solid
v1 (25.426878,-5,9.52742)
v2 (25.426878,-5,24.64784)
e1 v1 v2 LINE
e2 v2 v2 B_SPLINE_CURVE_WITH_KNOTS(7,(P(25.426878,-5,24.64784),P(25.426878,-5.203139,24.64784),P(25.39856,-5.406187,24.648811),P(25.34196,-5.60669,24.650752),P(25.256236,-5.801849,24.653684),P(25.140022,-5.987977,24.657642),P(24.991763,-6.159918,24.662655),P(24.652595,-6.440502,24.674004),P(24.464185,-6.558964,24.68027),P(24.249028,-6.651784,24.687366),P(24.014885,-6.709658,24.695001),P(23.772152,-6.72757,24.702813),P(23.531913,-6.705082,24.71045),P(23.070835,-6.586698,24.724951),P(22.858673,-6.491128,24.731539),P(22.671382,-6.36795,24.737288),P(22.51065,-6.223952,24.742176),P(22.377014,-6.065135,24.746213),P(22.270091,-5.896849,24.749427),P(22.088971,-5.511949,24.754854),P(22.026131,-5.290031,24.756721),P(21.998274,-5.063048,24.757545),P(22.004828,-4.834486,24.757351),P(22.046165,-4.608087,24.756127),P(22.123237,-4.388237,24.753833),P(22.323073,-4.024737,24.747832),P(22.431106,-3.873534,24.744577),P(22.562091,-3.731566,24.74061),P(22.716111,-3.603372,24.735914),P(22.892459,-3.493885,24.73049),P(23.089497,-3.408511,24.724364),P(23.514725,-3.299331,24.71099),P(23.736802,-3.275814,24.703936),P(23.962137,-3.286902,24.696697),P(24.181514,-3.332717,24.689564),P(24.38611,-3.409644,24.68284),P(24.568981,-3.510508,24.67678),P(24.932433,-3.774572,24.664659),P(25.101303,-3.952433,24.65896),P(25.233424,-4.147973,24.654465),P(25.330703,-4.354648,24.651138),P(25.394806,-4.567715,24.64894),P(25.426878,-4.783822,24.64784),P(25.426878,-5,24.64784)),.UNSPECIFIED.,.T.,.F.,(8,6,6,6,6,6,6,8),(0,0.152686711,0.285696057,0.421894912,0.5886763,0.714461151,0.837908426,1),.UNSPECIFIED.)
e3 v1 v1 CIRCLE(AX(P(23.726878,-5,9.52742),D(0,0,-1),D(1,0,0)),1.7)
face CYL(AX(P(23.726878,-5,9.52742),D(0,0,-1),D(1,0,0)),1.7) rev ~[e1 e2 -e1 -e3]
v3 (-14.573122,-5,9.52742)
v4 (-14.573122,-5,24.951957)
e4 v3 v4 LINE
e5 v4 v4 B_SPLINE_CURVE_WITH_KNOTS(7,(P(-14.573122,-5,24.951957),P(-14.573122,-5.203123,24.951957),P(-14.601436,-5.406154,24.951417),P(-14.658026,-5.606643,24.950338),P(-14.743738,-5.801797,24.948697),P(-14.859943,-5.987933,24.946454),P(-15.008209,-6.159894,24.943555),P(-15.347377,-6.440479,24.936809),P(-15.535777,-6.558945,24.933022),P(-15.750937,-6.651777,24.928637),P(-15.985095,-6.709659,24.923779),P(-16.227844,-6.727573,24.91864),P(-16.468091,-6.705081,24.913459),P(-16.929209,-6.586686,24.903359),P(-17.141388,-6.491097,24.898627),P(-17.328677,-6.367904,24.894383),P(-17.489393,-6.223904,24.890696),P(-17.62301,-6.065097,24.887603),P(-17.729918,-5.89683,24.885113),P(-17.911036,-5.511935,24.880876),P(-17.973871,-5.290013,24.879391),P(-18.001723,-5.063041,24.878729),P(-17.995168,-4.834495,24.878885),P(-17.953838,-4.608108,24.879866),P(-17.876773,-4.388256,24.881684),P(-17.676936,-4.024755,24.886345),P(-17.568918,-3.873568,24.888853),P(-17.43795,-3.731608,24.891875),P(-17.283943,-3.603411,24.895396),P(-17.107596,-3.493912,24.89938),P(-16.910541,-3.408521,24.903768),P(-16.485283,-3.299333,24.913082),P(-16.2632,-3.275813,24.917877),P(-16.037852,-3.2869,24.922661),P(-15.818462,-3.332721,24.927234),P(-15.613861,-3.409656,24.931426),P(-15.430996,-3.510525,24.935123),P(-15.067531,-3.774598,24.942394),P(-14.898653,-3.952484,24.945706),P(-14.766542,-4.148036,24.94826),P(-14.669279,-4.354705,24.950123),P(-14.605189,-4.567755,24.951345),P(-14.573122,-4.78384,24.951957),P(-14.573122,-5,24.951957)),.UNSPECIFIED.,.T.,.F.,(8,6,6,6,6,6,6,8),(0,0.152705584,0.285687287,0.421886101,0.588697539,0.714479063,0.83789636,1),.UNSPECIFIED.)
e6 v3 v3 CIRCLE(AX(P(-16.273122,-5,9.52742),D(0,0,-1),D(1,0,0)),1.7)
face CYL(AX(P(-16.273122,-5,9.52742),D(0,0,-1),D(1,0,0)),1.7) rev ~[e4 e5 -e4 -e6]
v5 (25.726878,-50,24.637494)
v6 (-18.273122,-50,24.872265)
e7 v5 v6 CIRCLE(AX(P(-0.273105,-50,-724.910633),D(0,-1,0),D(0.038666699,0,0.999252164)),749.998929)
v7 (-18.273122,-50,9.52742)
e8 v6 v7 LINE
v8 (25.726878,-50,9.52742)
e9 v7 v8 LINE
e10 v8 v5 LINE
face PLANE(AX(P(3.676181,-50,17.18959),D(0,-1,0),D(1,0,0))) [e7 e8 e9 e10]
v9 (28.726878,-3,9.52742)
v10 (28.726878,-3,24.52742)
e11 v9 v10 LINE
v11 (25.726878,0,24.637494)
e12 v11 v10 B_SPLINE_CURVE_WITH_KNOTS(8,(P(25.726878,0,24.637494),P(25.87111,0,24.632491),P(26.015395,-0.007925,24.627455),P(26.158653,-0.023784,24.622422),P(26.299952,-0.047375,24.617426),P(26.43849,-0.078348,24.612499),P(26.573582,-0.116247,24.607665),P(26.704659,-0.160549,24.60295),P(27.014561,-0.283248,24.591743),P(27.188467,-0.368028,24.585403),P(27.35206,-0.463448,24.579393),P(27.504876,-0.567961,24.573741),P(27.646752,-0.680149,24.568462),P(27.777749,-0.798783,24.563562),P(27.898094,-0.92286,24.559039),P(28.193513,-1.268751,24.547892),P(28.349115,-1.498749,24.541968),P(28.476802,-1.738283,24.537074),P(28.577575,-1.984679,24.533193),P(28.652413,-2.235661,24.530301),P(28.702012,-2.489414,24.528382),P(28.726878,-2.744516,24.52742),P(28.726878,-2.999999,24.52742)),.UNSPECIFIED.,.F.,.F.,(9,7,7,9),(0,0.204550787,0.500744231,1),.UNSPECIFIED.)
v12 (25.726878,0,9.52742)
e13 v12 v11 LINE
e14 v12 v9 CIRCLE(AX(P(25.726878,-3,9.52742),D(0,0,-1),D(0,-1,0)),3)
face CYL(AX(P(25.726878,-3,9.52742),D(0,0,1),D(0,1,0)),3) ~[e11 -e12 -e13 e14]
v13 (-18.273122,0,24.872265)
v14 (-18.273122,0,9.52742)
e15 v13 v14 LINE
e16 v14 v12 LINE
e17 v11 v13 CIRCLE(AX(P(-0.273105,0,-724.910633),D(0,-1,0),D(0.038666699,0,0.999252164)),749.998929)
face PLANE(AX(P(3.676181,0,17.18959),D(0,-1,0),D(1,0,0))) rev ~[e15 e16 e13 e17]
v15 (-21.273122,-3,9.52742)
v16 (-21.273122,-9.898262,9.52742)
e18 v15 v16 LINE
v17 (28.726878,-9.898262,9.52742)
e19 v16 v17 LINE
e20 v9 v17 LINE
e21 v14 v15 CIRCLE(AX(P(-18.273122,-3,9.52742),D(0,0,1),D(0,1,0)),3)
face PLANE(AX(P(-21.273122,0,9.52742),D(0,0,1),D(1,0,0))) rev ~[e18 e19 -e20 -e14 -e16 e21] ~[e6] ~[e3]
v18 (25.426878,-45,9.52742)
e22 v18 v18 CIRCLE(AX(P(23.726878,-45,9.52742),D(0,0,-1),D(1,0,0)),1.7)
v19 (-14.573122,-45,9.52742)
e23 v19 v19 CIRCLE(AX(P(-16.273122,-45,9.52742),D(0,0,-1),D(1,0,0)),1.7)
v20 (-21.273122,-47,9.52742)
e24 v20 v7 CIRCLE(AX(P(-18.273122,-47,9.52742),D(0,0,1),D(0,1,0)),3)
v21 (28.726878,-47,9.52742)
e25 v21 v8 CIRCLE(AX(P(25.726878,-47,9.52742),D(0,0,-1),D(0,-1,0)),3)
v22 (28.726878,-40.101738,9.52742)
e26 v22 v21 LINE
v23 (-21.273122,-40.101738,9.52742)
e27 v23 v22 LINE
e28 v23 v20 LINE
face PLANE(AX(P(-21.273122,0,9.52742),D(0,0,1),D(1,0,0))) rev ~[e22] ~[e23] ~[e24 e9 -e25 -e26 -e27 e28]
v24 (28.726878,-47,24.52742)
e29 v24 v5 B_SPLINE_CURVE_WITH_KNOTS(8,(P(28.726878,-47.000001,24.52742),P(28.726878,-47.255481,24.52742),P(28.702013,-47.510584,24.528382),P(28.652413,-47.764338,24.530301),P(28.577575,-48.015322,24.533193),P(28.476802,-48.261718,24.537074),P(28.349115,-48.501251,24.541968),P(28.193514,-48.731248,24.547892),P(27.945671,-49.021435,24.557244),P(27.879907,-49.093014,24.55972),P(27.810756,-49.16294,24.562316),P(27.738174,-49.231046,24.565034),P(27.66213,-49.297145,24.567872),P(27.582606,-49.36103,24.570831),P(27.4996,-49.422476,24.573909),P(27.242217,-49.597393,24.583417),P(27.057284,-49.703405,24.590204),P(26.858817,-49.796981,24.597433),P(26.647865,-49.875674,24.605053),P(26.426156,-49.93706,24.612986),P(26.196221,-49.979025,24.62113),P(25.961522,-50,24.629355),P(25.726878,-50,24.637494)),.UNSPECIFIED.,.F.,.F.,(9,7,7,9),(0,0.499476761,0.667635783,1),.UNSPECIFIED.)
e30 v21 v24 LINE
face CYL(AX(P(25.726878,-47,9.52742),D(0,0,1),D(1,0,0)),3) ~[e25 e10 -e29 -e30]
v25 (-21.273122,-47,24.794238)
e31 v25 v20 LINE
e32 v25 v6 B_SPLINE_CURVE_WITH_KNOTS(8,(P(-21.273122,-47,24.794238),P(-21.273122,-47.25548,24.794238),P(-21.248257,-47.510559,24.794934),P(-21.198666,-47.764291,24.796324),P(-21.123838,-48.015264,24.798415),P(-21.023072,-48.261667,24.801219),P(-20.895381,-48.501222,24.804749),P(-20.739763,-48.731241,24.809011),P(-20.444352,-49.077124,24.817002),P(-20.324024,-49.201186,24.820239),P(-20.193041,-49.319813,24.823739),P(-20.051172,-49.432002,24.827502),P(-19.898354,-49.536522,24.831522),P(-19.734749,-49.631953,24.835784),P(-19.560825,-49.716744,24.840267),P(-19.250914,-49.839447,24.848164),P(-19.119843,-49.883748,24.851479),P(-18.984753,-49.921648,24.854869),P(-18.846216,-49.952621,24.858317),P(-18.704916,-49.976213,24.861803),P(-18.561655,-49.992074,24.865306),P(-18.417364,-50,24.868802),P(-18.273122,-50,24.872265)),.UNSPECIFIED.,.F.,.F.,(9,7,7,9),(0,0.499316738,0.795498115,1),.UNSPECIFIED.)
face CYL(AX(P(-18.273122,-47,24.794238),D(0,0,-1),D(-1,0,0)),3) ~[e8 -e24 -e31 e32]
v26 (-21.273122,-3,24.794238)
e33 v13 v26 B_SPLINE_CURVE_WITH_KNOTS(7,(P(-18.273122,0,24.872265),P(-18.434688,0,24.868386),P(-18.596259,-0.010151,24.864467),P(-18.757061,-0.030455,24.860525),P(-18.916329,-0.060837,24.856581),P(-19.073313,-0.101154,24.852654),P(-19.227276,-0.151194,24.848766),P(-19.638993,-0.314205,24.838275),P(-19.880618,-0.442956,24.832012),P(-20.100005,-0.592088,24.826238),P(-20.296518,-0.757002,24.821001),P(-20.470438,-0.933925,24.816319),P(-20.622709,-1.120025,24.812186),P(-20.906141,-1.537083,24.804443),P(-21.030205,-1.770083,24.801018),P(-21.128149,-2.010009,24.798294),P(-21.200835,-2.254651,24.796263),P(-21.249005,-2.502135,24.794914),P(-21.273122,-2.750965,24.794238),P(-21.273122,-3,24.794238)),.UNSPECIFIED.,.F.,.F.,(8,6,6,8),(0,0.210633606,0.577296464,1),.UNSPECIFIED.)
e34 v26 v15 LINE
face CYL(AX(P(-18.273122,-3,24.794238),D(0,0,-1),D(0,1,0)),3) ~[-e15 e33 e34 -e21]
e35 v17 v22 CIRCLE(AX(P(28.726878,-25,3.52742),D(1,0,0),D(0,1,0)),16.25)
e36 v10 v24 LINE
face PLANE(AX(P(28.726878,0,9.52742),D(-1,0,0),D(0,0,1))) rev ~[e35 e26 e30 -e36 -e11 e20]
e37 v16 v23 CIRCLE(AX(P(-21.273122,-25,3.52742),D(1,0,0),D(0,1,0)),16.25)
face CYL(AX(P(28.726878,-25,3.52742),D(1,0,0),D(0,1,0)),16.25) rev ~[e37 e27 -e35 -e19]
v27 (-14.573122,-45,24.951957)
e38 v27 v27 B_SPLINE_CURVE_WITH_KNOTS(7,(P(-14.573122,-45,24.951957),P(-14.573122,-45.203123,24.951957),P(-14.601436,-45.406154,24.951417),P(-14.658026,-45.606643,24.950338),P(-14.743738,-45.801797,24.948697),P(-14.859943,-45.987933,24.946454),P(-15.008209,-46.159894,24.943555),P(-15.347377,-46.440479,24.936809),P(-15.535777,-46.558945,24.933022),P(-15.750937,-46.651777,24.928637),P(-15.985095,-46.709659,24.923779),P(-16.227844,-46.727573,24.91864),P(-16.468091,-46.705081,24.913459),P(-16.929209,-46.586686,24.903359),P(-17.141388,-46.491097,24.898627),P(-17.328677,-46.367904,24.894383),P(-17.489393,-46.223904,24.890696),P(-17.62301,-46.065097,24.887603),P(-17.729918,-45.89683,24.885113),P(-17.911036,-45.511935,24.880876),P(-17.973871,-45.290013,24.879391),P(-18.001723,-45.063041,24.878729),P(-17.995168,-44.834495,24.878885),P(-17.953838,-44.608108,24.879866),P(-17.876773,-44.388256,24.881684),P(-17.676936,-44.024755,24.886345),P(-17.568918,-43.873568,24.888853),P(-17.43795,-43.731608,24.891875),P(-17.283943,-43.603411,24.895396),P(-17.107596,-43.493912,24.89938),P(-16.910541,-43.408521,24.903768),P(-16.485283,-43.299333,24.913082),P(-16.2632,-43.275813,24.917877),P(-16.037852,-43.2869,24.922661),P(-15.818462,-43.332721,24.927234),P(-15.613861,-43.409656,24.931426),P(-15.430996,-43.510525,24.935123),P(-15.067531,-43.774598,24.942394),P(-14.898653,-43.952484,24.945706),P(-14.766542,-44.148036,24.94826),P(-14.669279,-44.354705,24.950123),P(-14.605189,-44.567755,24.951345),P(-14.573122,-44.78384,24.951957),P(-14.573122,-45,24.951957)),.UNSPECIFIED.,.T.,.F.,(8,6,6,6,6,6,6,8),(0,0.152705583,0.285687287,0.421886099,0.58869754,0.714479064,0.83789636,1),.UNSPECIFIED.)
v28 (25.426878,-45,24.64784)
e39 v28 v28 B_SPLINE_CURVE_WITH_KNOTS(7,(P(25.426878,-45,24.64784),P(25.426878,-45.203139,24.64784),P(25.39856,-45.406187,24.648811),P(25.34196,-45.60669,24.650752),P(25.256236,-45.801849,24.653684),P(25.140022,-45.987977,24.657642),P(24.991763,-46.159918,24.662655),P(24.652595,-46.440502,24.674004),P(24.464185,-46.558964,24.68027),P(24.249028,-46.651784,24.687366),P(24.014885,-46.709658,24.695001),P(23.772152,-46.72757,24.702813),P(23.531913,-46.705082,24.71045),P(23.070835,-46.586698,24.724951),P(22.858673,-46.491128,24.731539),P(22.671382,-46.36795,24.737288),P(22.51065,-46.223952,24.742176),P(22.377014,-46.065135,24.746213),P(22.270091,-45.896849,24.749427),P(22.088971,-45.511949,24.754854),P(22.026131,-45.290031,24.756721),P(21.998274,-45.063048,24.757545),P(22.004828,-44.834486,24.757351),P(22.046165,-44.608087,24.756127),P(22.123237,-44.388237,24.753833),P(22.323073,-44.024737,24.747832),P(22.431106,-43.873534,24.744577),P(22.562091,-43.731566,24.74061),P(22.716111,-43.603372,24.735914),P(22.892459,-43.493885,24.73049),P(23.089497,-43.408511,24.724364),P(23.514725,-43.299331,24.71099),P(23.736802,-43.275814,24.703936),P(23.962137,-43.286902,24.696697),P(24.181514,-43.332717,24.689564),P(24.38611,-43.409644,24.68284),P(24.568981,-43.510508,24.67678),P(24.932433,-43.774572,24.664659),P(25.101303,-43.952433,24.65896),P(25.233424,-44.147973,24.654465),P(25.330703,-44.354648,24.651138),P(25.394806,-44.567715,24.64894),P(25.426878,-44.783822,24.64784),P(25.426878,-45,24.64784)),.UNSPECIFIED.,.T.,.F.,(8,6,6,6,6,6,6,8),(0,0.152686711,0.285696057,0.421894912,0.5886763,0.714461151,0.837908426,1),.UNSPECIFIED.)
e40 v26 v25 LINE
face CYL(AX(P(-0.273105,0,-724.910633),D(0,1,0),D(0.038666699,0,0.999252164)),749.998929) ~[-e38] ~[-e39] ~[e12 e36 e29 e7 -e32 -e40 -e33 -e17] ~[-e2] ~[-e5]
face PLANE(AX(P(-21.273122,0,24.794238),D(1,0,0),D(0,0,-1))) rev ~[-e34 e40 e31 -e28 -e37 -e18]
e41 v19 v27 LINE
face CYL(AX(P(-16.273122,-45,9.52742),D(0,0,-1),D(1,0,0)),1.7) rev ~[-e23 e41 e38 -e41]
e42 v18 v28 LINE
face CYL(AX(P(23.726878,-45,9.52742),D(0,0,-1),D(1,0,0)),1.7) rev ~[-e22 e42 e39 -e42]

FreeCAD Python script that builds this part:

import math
import FreeCAD as App
import Part
import Sketcher
from FreeCAD import Vector


def edges_at(feature, points):
    """Names of the edges that pass closest to the given points."""
    edges = feature.Shape.Edges
    near = lambda p: min(range(len(edges)), key=lambda i: edges[i].distToShape(Part.Vertex(*p))[0])
    return sorted({f"Edge{near(p) + 1}" for p in points})

doc = App.newDocument("Part")
body = doc.addObject("PartDesign::Body", "Body")

# Sketch on XZ plane
sketch1 = body.newObject("Sketcher::SketchObject", "Sketch")
sketch1.AttachmentSupport = (doc.getObject("XZ_Plane"), [""])
sketch1.MapMode = "FlatFace"
sketch1.addGeometry(Part.LineSegment(Vector(-21, 10, 0), Vector(29, 10, 0)), False)
sketch1.addGeometry(Part.LineSegment(Vector(29, 10, 0), Vector(29, 25, 0)), False)
sketch1.addGeometry(Part.ArcOfCircle(Part.Circle(Vector(0, -725, 0), Vector(0, 0, 1), 750), math.radians(87.78), math.radians(91.6)), False)
sketch1.addGeometry(Part.LineSegment(Vector(-21, 25, 0), Vector(-21, 10, 0)), False)
sketch1.addConstraint(Sketcher.Constraint("Coincident", 0, 2, 1, 1))
sketch1.addConstraint(Sketcher.Constraint("Coincident", 1, 2, 2, 1))
sketch1.addConstraint(Sketcher.Constraint("Coincident", 2, 2, 3, 1))
sketch1.addConstraint(Sketcher.Constraint("Coincident", 3, 2, 0, 1))
sketch1.addConstraint(Sketcher.Constraint("Horizontal", 0))
sketch1.addConstraint(Sketcher.Constraint("Vertical", 1))
sketch1.addConstraint(Sketcher.Constraint("Vertical", 3))
sketch1.addConstraint(Sketcher.Constraint("DistanceX", 0, 1, 0, 2, 50.0))
sketch1.addConstraint(Sketcher.Constraint("DistanceY", 1, 1, 1, 2, 15.0))
sketch1.addConstraint(Sketcher.Constraint("Radius", 2, 749.998929))
sketch1.addConstraint(Sketcher.Constraint("DistanceY", 3, 2, 3, 1, 15.266818))
sketch1.addConstraint(Sketcher.Constraint("DistanceY", -1, 1, 0, 2, 9.52742))
sketch1.addConstraint(Sketcher.Constraint("DistanceX", 2, 3, -1, 1, 0.273105))
pad1 = body.newObject("PartDesign::Pad", "Pad")
pad1.Profile = sketch1
pad1.Length = 50

# Sketch on YZ plane
sketch2 = body.newObject("Sketcher::SketchObject", "Sketch001")
sketch2.AttachmentSupport = (doc.getObject("YZ_Plane"), [""])
sketch2.MapMode = "FlatFace"
sketch2.AttachmentOffset = App.Placement(Vector(0, 0, 28.726878), App.Rotation())
sketch2.addGeometry(Part.Circle(Vector(-25, 4, 0), Vector(0, 0, 1), 16), False)
sketch2.addConstraint(Sketcher.Constraint("Diameter", 0, 32.5))
sketch2.addConstraint(Sketcher.Constraint("DistanceX", 0, 3, -1, 1, 25.0))
sketch2.addConstraint(Sketcher.Constraint("DistanceY", -1, 1, 0, 3, 3.52742))
pocket1 = body.newObject("PartDesign::Pocket", "Pocket")
pocket1.Profile = sketch2
pocket1.Type = "ThroughAll"

# Sketch on XY plane
sketch3 = body.newObject("Sketcher::SketchObject", "Sketch002")
sketch3.AttachmentSupport = (doc.getObject("XY_Plane"), [""])
sketch3.MapMode = "FlatFace"
sketch3.AttachmentOffset = App.Placement(Vector(0, 0, 9.52742), App.Rotation())
sketch3.addGeometry(Part.Circle(Vector(-16.3, -45, 0), Vector(0, 0, 1), 1.7), False)
sketch3.addGeometry(Part.Circle(Vector(23.7, -45, 0), Vector(0, 0, 1), 1.7), False)
sketch3.addGeometry(Part.Circle(Vector(-16.3, -5, 0), Vector(0, 0, 1), 1.7), False)
sketch3.addGeometry(Part.Circle(Vector(23.7, -5, 0), Vector(0, 0, 1), 1.7), False)
sketch3.addConstraint(Sketcher.Constraint("Equal", 0, 1))
sketch3.addConstraint(Sketcher.Constraint("Equal", 1, 2))
sketch3.addConstraint(Sketcher.Constraint("Equal", 2, 3))
sketch3.addConstraint(Sketcher.Constraint("Horizontal", 0, 3, 1, 3))
sketch3.addConstraint(Sketcher.Constraint("Horizontal", 2, 3, 3, 3))
sketch3.addConstraint(Sketcher.Constraint("Vertical", 0, 3, 2, 3))
sketch3.addConstraint(Sketcher.Constraint("Vertical", 1, 3, 3, 3))
sketch3.addConstraint(Sketcher.Constraint("Diameter", 0, 3.4))
sketch3.addConstraint(Sketcher.Constraint("DistanceY", 0, 3, -1, 1, 45.0))
sketch3.addConstraint(Sketcher.Constraint("DistanceY", 2, 3, -1, 1, 5.0))
sketch3.addConstraint(Sketcher.Constraint("DistanceX", 0, 3, 1, 3, 40.0))
sketch3.addConstraint(Sketcher.Constraint("DistanceX", 0, 3, -1, 1, 16.273122))
pocket2 = body.newObject("PartDesign::Pocket", "Pocket001")
pocket2.Profile = sketch3
pocket2.Type = "ThroughAll"
pocket2.Reversed = True
doc.recompute()

fillet = body.newObject("PartDesign::Fillet", "Fillet")
fillet.Base = (pocket2, edges_at(pocket2, [
    (28.727, -50, 17.027),
    (-21.273, -50, 17.161),
    (-21.273, 0, 17.161),
    (28.727, 0, 17.027),
]))
fillet.Radius = 3

doc.recompute()
